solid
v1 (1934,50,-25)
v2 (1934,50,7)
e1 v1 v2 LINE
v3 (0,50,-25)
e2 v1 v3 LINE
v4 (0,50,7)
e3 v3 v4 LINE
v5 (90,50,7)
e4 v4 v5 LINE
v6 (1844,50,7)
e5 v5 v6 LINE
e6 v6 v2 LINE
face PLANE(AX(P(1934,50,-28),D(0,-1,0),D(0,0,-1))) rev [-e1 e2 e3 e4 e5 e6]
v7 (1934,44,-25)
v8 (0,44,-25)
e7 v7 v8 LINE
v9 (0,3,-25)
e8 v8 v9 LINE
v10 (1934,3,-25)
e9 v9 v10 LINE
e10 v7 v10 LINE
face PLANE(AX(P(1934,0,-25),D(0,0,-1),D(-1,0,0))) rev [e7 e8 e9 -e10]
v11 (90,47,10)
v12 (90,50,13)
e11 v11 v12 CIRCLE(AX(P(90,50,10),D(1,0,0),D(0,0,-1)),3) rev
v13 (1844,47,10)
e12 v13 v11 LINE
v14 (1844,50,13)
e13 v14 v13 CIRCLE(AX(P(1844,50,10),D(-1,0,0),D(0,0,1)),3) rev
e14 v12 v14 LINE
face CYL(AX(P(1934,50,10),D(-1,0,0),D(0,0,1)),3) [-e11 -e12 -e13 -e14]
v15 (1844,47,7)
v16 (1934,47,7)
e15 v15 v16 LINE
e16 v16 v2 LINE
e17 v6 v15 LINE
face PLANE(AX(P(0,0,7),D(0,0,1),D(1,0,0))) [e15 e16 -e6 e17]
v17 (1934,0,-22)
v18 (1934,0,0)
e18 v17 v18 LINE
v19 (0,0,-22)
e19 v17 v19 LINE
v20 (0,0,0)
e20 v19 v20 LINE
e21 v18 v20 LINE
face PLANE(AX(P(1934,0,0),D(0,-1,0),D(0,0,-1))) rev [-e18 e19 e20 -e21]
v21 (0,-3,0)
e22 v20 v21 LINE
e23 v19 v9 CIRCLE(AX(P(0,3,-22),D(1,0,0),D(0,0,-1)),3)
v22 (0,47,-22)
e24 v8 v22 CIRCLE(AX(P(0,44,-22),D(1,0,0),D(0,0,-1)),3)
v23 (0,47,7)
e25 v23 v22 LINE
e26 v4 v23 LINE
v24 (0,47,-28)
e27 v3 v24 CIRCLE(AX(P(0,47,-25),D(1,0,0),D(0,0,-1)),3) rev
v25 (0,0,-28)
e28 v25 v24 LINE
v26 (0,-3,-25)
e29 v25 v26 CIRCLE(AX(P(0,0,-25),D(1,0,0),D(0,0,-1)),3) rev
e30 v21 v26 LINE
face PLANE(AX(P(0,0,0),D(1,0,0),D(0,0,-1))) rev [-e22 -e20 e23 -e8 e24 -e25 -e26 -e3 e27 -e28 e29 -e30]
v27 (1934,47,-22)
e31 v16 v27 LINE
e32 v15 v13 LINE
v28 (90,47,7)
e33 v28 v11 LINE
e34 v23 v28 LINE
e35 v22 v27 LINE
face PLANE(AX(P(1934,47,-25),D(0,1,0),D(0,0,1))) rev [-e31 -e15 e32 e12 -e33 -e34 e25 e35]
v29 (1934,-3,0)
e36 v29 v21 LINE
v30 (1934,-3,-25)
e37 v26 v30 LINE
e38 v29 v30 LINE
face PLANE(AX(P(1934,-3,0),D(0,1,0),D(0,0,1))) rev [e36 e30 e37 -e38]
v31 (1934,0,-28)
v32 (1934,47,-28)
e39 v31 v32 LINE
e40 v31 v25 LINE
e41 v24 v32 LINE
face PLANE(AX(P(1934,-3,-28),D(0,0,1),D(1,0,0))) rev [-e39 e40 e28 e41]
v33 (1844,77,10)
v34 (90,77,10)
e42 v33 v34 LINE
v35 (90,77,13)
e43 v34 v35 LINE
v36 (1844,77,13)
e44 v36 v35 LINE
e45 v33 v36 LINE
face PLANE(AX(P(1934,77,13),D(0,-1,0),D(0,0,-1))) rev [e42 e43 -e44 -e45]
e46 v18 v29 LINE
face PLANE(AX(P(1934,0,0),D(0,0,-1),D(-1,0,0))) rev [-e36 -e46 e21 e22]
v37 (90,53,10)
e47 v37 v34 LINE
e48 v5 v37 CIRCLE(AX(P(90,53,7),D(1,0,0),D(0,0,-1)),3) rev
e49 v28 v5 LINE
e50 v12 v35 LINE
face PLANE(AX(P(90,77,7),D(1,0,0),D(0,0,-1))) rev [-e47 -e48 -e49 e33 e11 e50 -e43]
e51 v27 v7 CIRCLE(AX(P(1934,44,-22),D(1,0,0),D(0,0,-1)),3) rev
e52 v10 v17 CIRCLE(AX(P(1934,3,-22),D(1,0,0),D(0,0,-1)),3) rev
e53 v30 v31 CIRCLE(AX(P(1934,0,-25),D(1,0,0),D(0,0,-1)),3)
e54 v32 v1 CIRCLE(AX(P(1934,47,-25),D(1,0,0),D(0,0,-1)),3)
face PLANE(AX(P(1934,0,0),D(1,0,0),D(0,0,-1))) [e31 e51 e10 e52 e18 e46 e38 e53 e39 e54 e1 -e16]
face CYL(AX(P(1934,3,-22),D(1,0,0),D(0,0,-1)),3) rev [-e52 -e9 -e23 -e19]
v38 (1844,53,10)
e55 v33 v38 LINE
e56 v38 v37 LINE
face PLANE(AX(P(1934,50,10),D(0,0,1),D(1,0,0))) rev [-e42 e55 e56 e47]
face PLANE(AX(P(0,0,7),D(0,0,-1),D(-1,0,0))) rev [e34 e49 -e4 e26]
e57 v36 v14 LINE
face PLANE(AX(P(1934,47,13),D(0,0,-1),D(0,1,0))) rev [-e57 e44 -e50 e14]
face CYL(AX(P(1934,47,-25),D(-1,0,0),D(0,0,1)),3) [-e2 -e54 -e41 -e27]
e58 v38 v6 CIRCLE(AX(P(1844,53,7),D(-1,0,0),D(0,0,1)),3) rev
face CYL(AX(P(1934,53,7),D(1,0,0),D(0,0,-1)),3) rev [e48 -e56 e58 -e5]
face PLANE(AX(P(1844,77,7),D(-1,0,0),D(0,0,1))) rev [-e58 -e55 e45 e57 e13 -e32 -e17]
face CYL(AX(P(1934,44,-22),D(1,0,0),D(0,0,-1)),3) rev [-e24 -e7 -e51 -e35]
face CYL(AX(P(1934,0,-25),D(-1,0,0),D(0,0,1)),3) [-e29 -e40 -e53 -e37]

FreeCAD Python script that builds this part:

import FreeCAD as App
import Part
import Sketcher
Q = App.Units.Quantity


def edges_at(feature, points):
    """Names of the edges that pass closest to the given points."""
    edges = feature.Shape.Edges
    near = lambda p: min(range(len(edges)), key=lambda i: edges[i].distToShape(Part.Vertex(*p))[0])
    return sorted({f"Edge{near(p) + 1}" for p in points})

doc = App.newDocument("Part")
body = doc.addObject("PartDesign::Body", "Body")

sketch1 = body.newObject("Sketcher::SketchObject", "Sketch")
sketch1.AttachmentSupport = (doc.getObject("YZ_Plane"), [""])
sketch1.MapMode = "FlatFace"
sketch1.addGeometry(Part.LineSegment(App.Vector(0, -25, 0), App.Vector(0, 0, 0)), False)
sketch1.addGeometry(Part.LineSegment(App.Vector(0, 0, 0), App.Vector(-3, 0, 0)), False)
sketch1.addGeometry(Part.LineSegment(App.Vector(-3, 0, 0), App.Vector(-3, -28, 0)), False)
sketch1.addGeometry(Part.LineSegment(App.Vector(-3, -28, 0), App.Vector(50, -28, 0)), False)
sketch1.addGeometry(Part.LineSegment(App.Vector(50, -28, 0), App.Vector(50, 10, 0)), False)
sketch1.addGeometry(Part.LineSegment(App.Vector(50, 10, 0), App.Vector(77, 10, 0)), False)
sketch1.addGeometry(Part.LineSegment(App.Vector(77, 10, 0), App.Vector(77, 13, 0)), False)
sketch1.addGeometry(Part.LineSegment(App.Vector(77, 13, 0), App.Vector(47, 13, 0)), False)
sketch1.addGeometry(Part.LineSegment(App.Vector(47, 13, 0), App.Vector(47, -25, 0)), False)
sketch1.addGeometry(Part.LineSegment(App.Vector(47, -25, 0), App.Vector(0, -25, 0)), False)
sketch1.addConstraint(Sketcher.Constraint("Coincident", 0, 2, 1, 1))
sketch1.addConstraint(Sketcher.Constraint("Coincident", 1, 2, 2, 1))
sketch1.addConstraint(Sketcher.Constraint("Coincident", 2, 2, 3, 1))
sketch1.addConstraint(Sketcher.Constraint("Coincident", 3, 2, 4, 1))
sketch1.addConstraint(Sketcher.Constraint("Coincident", 4, 2, 5, 1))
sketch1.addConstraint(Sketcher.Constraint("Coincident", 5, 2, 6, 1))
sketch1.addConstraint(Sketcher.Constraint("Coincident", 6, 2, 7, 1))
sketch1.addConstraint(Sketcher.Constraint("Coincident", 7, 2, 8, 1))
sketch1.addConstraint(Sketcher.Constraint("Coincident", 8, 2, 9, 1))
sketch1.addConstraint(Sketcher.Constraint("Coincident", 9, 2, 0, 1))
sketch1.addConstraint(Sketcher.Constraint("Vertical", 0))
sketch1.addConstraint(Sketcher.Constraint("Horizontal", 1))
sketch1.addConstraint(Sketcher.Constraint("Vertical", 2))
sketch1.addConstraint(Sketcher.Constraint("Horizontal", 3))
sketch1.addConstraint(Sketcher.Constraint("Vertical", 4))
sketch1.addConstraint(Sketcher.Constraint("Horizontal", 5))
sketch1.addConstraint(Sketcher.Constraint("Vertical", 6))
sketch1.addConstraint(Sketcher.Constraint("Horizontal", 7))
sketch1.addConstraint(Sketcher.Constraint("Vertical", 8))
sketch1.addConstraint(Sketcher.Constraint("Horizontal", 9))
sketch1.addConstraint(Sketcher.Constraint("Coincident", 0, 2, -1, 1))
sketch1.addConstraint(Sketcher.Constraint("Equal", 1, 6))
sketch1.addConstraint(Sketcher.Constraint("Equal", 4, 8))
sketch1.addConstraint(Sketcher.Constraint("DistanceX", 1, 2, 1, 1, Q("3 mm")))
sketch1.addConstraint(Sketcher.Constraint("DistanceX", 3, 1, 3, 2, Q("53 mm")))
sketch1.addConstraint(Sketcher.Constraint("DistanceX", 5, 1, 5, 2, Q("27 mm")))
sketch1.addConstraint(Sketcher.Constraint("DistanceX", 7, 2, 7, 1, Q("30 mm")))
sketch1.addConstraint(Sketcher.Constraint("DistanceY", 0, 1, 0, 2, Q("25 mm")))
sketch1.addConstraint(Sketcher.Constraint("DistanceY", 4, 1, 4, 2, Q("38 mm")))
pad1 = body.newObject("PartDesign::Pad", "Pad")
pad1.Profile = sketch1
pad1.Length = 1934
doc.recompute()

fillet = body.newObject("PartDesign::Fillet", "Fillet")
fillet.Base = (pad1, edges_at(pad1, [
    (967, 0, -25),
    (967, 47, -25),
    (967, 47, 13),
    (967, 50, 10),
    (967, 50, -28),
    (967, -3, -28),
]))
fillet.Radius = 3

sketch2 = body.newObject("Sketcher::SketchObject", "Sketch001")
sketch2.AttachmentSupport = (doc.getObject("XY_Plane"), [""])
sketch2.MapMode = "FlatFace"
sketch2.AttachmentOffset = App.Placement(App.Vector(0, 0, 13), App.Rotation())
sketch2.addGeometry(Part.LineSegment(App.Vector(0, 77, 0), App.Vector(0, 47, 0)), False)
sketch2.addGeometry(Part.LineSegment(App.Vector(0, 47, 0), App.Vector(90, 47, 0)), False)
sketch2.addGeometry(Part.LineSegment(App.Vector(90, 47, 0), App.Vector(90, 77, 0)), False)
sketch2.addGeometry(Part.LineSegment(App.Vector(90, 77, 0), App.Vector(0, 77, 0)), False)
sketch2.addConstraint(Sketcher.Constraint("Coincident", 0, 2, 1, 1))
sketch2.addConstraint(Sketcher.Constraint("Coincident", 1, 2, 2, 1))
sketch2.addConstraint(Sketcher.Constraint("Coincident", 2, 2, 3, 1))
sketch2.addConstraint(Sketcher.Constraint("Coincident", 3, 2, 0, 1))
sketch2.addConstraint(Sketcher.Constraint("Vertical", 0))
sketch2.addConstraint(Sketcher.Constraint("Horizontal", 1))
sketch2.addConstraint(Sketcher.Constraint("Vertical", 2))
sketch2.addConstraint(Sketcher.Constraint("Horizontal", 3))
sketch2.addConstraint(Sketcher.Constraint("PointOnObject", 0, 2, -2))
sketch2.addConstraint(Sketcher.Constraint("DistanceX", 1, 1, 1, 2, Q("90 mm")))
sketch2.addConstraint(Sketcher.Constraint("DistanceY", 0, 2, 0, 1, Q("30 mm")))
sketch2.addConstraint(Sketcher.Constraint("DistanceY", -1, 1, 0, 2, Q("47 mm")))
pocket1 = body.newObject("PartDesign::Pocket", "Pocket")
pocket1.Profile = sketch2
pocket1.Length = 6

sketch3 = body.newObject("Sketcher::SketchObject", "Sketch002")
sketch3.AttachmentSupport = (doc.getObject("XY_Plane"), [""])
sketch3.MapMode = "FlatFace"
sketch3.AttachmentOffset = App.Placement(App.Vector(0, 0, 13), App.Rotation())
sketch3.addGeometry(Part.LineSegment(App.Vector(1844, 77, 0), App.Vector(1844, 47, 0)), False)
sketch3.addGeometry(Part.LineSegment(App.Vector(1844, 47, 0), App.Vector(1934, 47, 0)), False)
sketch3.addGeometry(Part.LineSegment(App.Vector(1934, 47, 0), App.Vector(1934, 77, 0)), False)
sketch3.addGeometry(Part.LineSegment(App.Vector(1934, 77, 0), App.Vector(1844, 77, 0)), False)
sketch3.addConstraint(Sketcher.Constraint("Coincident", 0, 2, 1, 1))
sketch3.addConstraint(Sketcher.Constraint("Coincident", 1, 2, 2, 1))
sketch3.addConstraint(Sketcher.Constraint("Coincident", 2, 2, 3, 1))
sketch3.addConstraint(Sketcher.Constraint("Coincident", 3, 2, 0, 1))
sketch3.addConstraint(Sketcher.Constraint("Vertical", 0))
sketch3.addConstraint(Sketcher.Constraint("Horizontal", 1))
sketch3.addConstraint(Sketcher.Constraint("Vertical", 2))
sketch3.addConstraint(Sketcher.Constraint("Horizontal", 3))
sketch3.addConstraint(Sketcher.Constraint("DistanceX", 1, 1, 1, 2, Q("90 mm")))
sketch3.addConstraint(Sketcher.Constraint("DistanceY", 0, 2, 0, 1, Q("30 mm")))
sketch3.addConstraint(Sketcher.Constraint("DistanceX", -1, 1, 0, 2, Q("1844 mm")))
sketch3.addConstraint(Sketcher.Constraint("DistanceY", -1, 1, 0, 2, Q("47 mm")))
pocket2 = body.newObject("PartDesign::Pocket", "Pocket001")
pocket2.Profile = sketch3
pocket2.Length = 6

doc.recompute()
